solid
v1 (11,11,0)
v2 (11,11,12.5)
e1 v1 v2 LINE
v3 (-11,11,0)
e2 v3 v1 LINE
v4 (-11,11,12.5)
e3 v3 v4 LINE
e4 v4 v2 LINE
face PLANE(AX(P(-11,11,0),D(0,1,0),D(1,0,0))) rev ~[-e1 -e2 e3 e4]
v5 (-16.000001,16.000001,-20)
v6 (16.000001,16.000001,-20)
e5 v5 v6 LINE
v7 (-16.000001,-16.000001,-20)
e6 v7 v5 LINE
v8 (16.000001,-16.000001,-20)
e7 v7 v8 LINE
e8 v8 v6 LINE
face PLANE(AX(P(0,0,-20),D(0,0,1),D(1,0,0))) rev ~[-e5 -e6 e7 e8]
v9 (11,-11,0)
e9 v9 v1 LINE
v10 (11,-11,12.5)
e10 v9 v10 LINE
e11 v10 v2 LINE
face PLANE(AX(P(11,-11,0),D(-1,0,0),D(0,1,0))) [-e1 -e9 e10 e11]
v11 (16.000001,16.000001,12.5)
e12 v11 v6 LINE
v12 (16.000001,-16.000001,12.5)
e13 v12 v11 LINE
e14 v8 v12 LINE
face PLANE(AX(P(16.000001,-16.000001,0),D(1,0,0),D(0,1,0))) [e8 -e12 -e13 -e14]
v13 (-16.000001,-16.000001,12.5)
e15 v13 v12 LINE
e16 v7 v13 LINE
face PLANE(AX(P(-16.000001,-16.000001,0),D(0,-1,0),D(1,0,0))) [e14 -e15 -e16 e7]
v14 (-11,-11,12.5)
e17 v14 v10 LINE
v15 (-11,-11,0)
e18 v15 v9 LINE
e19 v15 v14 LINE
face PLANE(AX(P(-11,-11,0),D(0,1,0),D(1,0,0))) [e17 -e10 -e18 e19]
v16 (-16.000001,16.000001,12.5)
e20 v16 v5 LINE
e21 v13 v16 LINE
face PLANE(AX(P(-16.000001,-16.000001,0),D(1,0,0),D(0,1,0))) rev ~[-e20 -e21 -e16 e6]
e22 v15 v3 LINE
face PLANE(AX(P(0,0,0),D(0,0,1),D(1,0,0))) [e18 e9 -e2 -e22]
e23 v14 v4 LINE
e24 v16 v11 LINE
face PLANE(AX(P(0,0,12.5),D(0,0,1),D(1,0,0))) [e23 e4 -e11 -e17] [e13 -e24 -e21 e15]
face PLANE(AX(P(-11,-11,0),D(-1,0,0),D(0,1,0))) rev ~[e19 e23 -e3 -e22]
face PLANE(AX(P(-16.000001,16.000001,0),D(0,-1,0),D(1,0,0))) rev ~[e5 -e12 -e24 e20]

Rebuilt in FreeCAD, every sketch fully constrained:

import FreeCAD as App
import Part
import Sketcher
from FreeCAD import Vector

doc = App.newDocument("Part")
params = doc.addObject("Spreadsheet::Sheet", "Params")
for row, (alias, value) in enumerate([
    ("sketch1_width", "32.000002 mm"),
    ("sketch1_width2", "22 mm"),
    ("pad1_length", "12.5 mm"),
    ("sketch2_width", "32.000002 mm"),
    ("pad2_length", "20 mm"),
], start=1):
    params.set(f"A{row}", alias)
    params.set(f"B{row}", "=" + value)
    params.setAlias(f"B{row}", alias)

body = doc.addObject("PartDesign::Body", "Body")

# Sketch on XY plane
sketch1 = body.newObject("Sketcher::SketchObject", "Sketch")
sketch1.AttachmentSupport = (doc.getObject("XY_Plane"), [""])
sketch1.MapMode = "FlatFace"
sketch1.addGeometry(Part.LineSegment(Vector(-16.000001, 16.000001, 0), Vector(-16.000001, -16.000001, 0)), False)
sketch1.addGeometry(Part.LineSegment(Vector(-16.000001, -16.000001, 0), Vector(16.000001, -16.000001, 0)), False)
sketch1.addGeometry(Part.LineSegment(Vector(16.000001, -16.000001, 0), Vector(16.000001, 16.000001, 0)), False)
sketch1.addGeometry(Part.LineSegment(Vector(16.000001, 16.000001, 0), Vector(-16.000001, 16.000001, 0)), False)
sketch1.addGeometry(Part.LineSegment(Vector(11, -11, 0), Vector(-11, -11, 0)), False)
sketch1.addGeometry(Part.LineSegment(Vector(-11, -11, 0), Vector(-11, 11, 0)), False)
sketch1.addGeometry(Part.LineSegment(Vector(-11, 11, 0), Vector(11, 11, 0)), False)
sketch1.addGeometry(Part.LineSegment(Vector(11, 11, 0), Vector(11, -11, 0)), False)
sketch1.addConstraint(Sketcher.Constraint("Coincident", 0, 2, 1, 1))
sketch1.addConstraint(Sketcher.Constraint("Coincident", 1, 2, 2, 1))
sketch1.addConstraint(Sketcher.Constraint("Coincident", 2, 2, 3, 1))
sketch1.addConstraint(Sketcher.Constraint("Coincident", 3, 2, 0, 1))
sketch1.addConstraint(Sketcher.Constraint("Coincident", 4, 2, 5, 1))
sketch1.addConstraint(Sketcher.Constraint("Coincident", 5, 2, 6, 1))
sketch1.addConstraint(Sketcher.Constraint("Coincident", 6, 2, 7, 1))
sketch1.addConstraint(Sketcher.Constraint("Coincident", 7, 2, 4, 1))
sketch1.addConstraint(Sketcher.Constraint("Vertical", 0))
sketch1.addConstraint(Sketcher.Constraint("Horizontal", 1))
sketch1.addConstraint(Sketcher.Constraint("Vertical", 2))
sketch1.addConstraint(Sketcher.Constraint("Horizontal", 3))
sketch1.addConstraint(Sketcher.Constraint("Horizontal", 4))
sketch1.addConstraint(Sketcher.Constraint("Vertical", 5))
sketch1.addConstraint(Sketcher.Constraint("Horizontal", 6))
sketch1.addConstraint(Sketcher.Constraint("Vertical", 7))
sketch1.addConstraint(Sketcher.Constraint("Symmetric", 0, 2, 2, 2, -1, 1))
sketch1.addConstraint(Sketcher.Constraint("Symmetric", 4, 2, 6, 2, -1, 1))
sketch1.addConstraint(Sketcher.Constraint("Equal", 3, 0))
sketch1.addConstraint(Sketcher.Constraint("Equal", 6, 5))
sketch1.addConstraint(Sketcher.Constraint("DistanceX", 1, 1, 1, 2, 32.000002))
sketch1.addConstraint(Sketcher.Constraint("DistanceX", 4, 2, 4, 1, 22.0))
sketch1.setExpression("Constraints[20]", "Params.sketch1_width")
sketch1.setExpression("Constraints[21]", "Params.sketch1_width2")
pad1 = body.newObject("PartDesign::Pad", "Pad")
pad1.Profile = sketch1
pad1.setExpression("Length", "Params.pad1_length")

# Sketch on XY plane
sketch2 = body.newObject("Sketcher::SketchObject", "Sketch001")
sketch2.AttachmentSupport = (doc.getObject("XY_Plane"), [""])
sketch2.MapMode = "FlatFace"
sketch2.addGeometry(Part.LineSegment(Vector(-16.000001, 16.000001, 0), Vector(-16.000001, -16.000001, 0)), False)
sketch2.addGeometry(Part.LineSegment(Vector(-16.000001, -16.000001, 0), Vector(16.000001, -16.000001, 0)), False)
sketch2.addGeometry(Part.LineSegment(Vector(16.000001, -16.000001, 0), Vector(16.000001, 16.000001, 0)), False)
sketch2.addGeometry(Part.LineSegment(Vector(16.000001, 16.000001, 0), Vector(-16.000001, 16.000001, 0)), False)
sketch2.addConstraint(Sketcher.Constraint("Coincident", 0, 2, 1, 1))
sketch2.addConstraint(Sketcher.Constraint("Coincident", 1, 2, 2, 1))
sketch2.addConstraint(Sketcher.Constraint("Coincident", 2, 2, 3, 1))
sketch2.addConstraint(Sketcher.Constraint("Coincident", 3, 2, 0, 1))
sketch2.addConstraint(Sketcher.Constraint("Vertical", 0))
sketch2.addConstraint(Sketcher.Constraint("Horizontal", 1))
sketch2.addConstraint(Sketcher.Constraint("Vertical", 2))
sketch2.addConstraint(Sketcher.Constraint("Horizontal", 3))
sketch2.addConstraint(Sketcher.Constraint("Symmetric", 0, 2, 2, 2, -1, 1))
sketch2.addConstraint(Sketcher.Constraint("Equal", 3, 0))
sketch2.addConstraint(Sketcher.Constraint("DistanceX", 1, 1, 1, 2, 32.000002))
sketch2.setExpression("Constraints[10]", "Params.sketch2_width")
pad2 = body.newObject("PartDesign::Pad", "Pad001")
pad2.Profile = sketch2
pad2.setExpression("Length", "Params.pad2_length")
pad2.Reversed = True

doc.recompute()
